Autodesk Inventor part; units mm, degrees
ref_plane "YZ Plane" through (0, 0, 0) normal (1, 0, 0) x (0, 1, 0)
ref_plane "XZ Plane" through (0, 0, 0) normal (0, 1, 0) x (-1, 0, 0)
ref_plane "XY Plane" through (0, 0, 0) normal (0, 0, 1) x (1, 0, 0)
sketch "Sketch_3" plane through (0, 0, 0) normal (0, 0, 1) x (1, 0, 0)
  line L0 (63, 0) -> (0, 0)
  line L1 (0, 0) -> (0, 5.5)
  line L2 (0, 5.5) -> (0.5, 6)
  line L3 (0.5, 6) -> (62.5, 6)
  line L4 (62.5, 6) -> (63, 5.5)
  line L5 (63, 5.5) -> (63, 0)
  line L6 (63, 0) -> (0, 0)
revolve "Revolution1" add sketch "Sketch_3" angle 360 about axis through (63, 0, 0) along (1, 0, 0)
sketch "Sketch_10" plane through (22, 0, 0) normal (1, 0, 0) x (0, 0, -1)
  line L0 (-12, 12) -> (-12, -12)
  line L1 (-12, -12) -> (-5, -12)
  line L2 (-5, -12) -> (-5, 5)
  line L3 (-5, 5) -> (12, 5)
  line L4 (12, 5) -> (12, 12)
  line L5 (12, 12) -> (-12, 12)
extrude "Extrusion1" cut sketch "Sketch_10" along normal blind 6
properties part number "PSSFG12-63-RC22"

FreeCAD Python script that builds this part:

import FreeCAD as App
import Part
import Sketcher

V = App.Vector
Q = App.Units.Quantity


def add_polygon(sketch, points):
    """Adds a closed chain of lines whose ends are joined by coincident constraints."""
    first, n = sketch.GeometryCount, len(points)
    for a, b in zip(points, points[1:] + points[:1]):
        sketch.addGeometry(Part.LineSegment(App.Vector(*a, 0), App.Vector(*b, 0)), False)
    for i in range(n):
        sketch.addConstraint(Sketcher.Constraint("Coincident", first + i, 2, first + (i + 1) % n, 1))

doc = App.newDocument("Part")
params = doc.addObject("Spreadsheet::Sheet", "Params")
for row, (alias, value) in enumerate([
    ("sketch1_width", "63 mm"),
    ("sketch1_width2", "62 mm"),
    ("sketch1_height", "5.5 mm"),
    ("revolution_angle", "360 deg"),
    ("sketch2_width", "24 mm"),
    ("sketch2_width2", "17 mm"),
    ("pocket1_length", "6 mm"),
], start=1):
    params.set(f"A{row}", alias)
    params.set(f"B{row}", "=" + value)
    params.setAlias(f"B{row}", alias)

body = doc.addObject("PartDesign::Body", "Body")

sketch1 = doc.addObject("Sketcher::SketchObject", "Sketch")
body.addObject(sketch1)
sketch1.AttachmentSupport = (doc.XY_Plane, [""])
sketch1.MapMode = "FlatFace"
add_polygon(sketch1, [(0, 0), (63, 0), (63, 5.5), (62.5, 6), (0.5, 6), (0, 5.5)])
sketch1.addConstraint(Sketcher.Constraint("Horizontal", 0))
sketch1.addConstraint(Sketcher.Constraint("Vertical", 1))
sketch1.addConstraint(Sketcher.Constraint("Horizontal", 3))
sketch1.addConstraint(Sketcher.Constraint("Vertical", 5))
sketch1.addConstraint(Sketcher.Constraint("Coincident", 5, 2, -1, 1))
sketch1.addConstraint(Sketcher.Constraint("Perpendicular", 2, 4))
sketch1.addConstraint(Sketcher.Constraint("Horizontal", 1, 2, 4, 2))
sketch1.addConstraint(Sketcher.Constraint("Equal", 2, 4))
sketch1.addConstraint(Sketcher.Constraint("DistanceX", 0, 1, 0, 2, Q("63 mm")))
sketch1.addConstraint(Sketcher.Constraint("DistanceX", 3, 2, 3, 1, Q("62 mm")))
sketch1.addConstraint(Sketcher.Constraint("DistanceY", 1, 1, 1, 2, Q("5.5 mm")))
sketch1.setExpression("Constraints[14]", "Params.sketch1_width")
sketch1.setExpression("Constraints[15]", "Params.sketch1_width2")
sketch1.setExpression("Constraints[16]", "Params.sketch1_height")
revolution = doc.addObject("PartDesign::Revolution", "Revolution")
body.addObject(revolution)
revolution.Profile = sketch1
revolution.ReferenceAxis = (sketch1, ["H_Axis"])
revolution.setExpression("Angle", "Params.revolution_angle")

sketch2 = doc.addObject("Sketcher::SketchObject", "Sketch001")
body.addObject(sketch2)
sketch2.AttachmentSupport = (doc.YZ_Plane, [""])
sketch2.MapMode = "FlatFace"
sketch2.AttachmentOffset = App.Placement(V(0, 0, 22), App.Rotation())
add_polygon(sketch2, [(12, -12), (12, 12), (-12, 12), (-12, 5), (5, 5), (5, -12)])
sketch2.addConstraint(Sketcher.Constraint("Vertical", 0))
sketch2.addConstraint(Sketcher.Constraint("Horizontal", 1))
sketch2.addConstraint(Sketcher.Constraint("Vertical", 2))
sketch2.addConstraint(Sketcher.Constraint("Horizontal", 3))
sketch2.addConstraint(Sketcher.Constraint("Vertical", 4))
sketch2.addConstraint(Sketcher.Constraint("Horizontal", 5))
sketch2.addConstraint(Sketcher.Constraint("Symmetric", 1, 2, 5, 2, -1, 1))
sketch2.addConstraint(Sketcher.Constraint("Equal", 1, 0))
sketch2.addConstraint(Sketcher.Constraint("Equal", 5, 2))
sketch2.addConstraint(Sketcher.Constraint("DistanceX", 1, 2, 1, 1, Q("24 mm")))
sketch2.addConstraint(Sketcher.Constraint("DistanceX", 3, 1, 3, 2, Q("17 mm")))
sketch2.setExpression("Constraints[15]", "Params.sketch2_width")
sketch2.setExpression("Constraints[16]", "Params.sketch2_width2")
pocket1 = doc.addObject("PartDesign::Pocket", "Pocket")
body.addObject(pocket1)
pocket1.Profile = sketch2
pocket1.setExpression("Length", "Params.pocket1_length")
pocket1.Reversed = True

doc.recompute()
